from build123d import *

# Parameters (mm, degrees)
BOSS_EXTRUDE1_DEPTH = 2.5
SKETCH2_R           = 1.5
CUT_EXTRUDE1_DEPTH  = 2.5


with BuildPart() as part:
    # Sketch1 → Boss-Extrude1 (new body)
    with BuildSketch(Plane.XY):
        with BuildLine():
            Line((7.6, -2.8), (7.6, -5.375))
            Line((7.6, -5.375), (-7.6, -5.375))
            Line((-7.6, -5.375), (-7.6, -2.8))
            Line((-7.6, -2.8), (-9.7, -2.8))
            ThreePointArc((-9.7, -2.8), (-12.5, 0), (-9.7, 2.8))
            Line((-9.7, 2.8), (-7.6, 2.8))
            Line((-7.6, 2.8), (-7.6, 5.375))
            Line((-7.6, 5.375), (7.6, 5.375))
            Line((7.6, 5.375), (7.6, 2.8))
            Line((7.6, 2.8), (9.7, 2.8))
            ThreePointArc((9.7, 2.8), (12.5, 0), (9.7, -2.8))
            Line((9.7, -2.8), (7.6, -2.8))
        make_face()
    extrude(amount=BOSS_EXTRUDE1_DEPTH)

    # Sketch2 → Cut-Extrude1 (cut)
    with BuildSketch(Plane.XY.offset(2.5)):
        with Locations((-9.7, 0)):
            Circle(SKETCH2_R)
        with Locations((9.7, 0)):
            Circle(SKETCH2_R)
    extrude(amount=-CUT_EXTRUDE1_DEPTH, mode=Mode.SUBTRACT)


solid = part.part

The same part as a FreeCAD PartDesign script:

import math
import FreeCAD as App
import Part
import Sketcher
from FreeCAD import Vector

doc = App.newDocument("Part")
body = doc.addObject("PartDesign::Body", "Body")

# Sketch on XY plane
sketch1 = body.newObject("Sketcher::SketchObject", "Sketch")
sketch1.AttachmentSupport = (doc.getObject("XY_Plane"), [""])
sketch1.MapMode = "FlatFace"
sketch1.addGeometry(Part.LineSegment(Vector(7.6, -5.4, 0), Vector(7.6, -2.8, 0)), False)
sketch1.addGeometry(Part.LineSegment(Vector(7.6, -2.8, 0), Vector(9.7, -2.8, 0)), False)
sketch1.addGeometry(Part.ArcOfCircle(Part.Circle(Vector(9.7, 0, 0), Vector(0, 0, 1), 2.8), math.radians(-90), math.radians(90)), False)
sketch1.addGeometry(Part.LineSegment(Vector(9.7, 2.8, 0), Vector(7.6, 2.8, 0)), False)
sketch1.addGeometry(Part.LineSegment(Vector(7.6, 2.8, 0), Vector(7.6, 5.4, 0)), False)
sketch1.addGeometry(Part.LineSegment(Vector(7.6, 5.4, 0), Vector(-7.6, 5.4, 0)), False)
sketch1.addGeometry(Part.LineSegment(Vector(-7.6, 5.4, 0), Vector(-7.6, 2.8, 0)), False)
sketch1.addGeometry(Part.LineSegment(Vector(-7.6, 2.8, 0), Vector(-9.7, 2.8, 0)), False)
sketch1.addGeometry(Part.ArcOfCircle(Part.Circle(Vector(-9.7, 0, 0), Vector(0, 0, 1), 2.8), math.radians(90), math.radians(270)), False)
sketch1.addGeometry(Part.LineSegment(Vector(-9.7, -2.8, 0), Vector(-7.6, -2.8, 0)), False)
sketch1.addGeometry(Part.LineSegment(Vector(-7.6, -2.8, 0), Vector(-7.6, -5.4, 0)), False)
sketch1.addGeometry(Part.LineSegment(Vector(-7.6, -5.4, 0), Vector(7.6, -5.4, 0)), False)
sketch1.addConstraint(Sketcher.Constraint("Coincident", 0, 2, 1, 1))
sketch1.addConstraint(Sketcher.Constraint("Tangent", 1, 2, 2, 1))
sketch1.addConstraint(Sketcher.Constraint("Tangent", 2, 2, 3, 1))
sketch1.addConstraint(Sketcher.Constraint("Coincident", 3, 2, 4, 1))
sketch1.addConstraint(Sketcher.Constraint("Coincident", 4, 2, 5, 1))
sketch1.addConstraint(Sketcher.Constraint("Coincident", 5, 2, 6, 1))
sketch1.addConstraint(Sketcher.Constraint("Coincident", 6, 2, 7, 1))
sketch1.addConstraint(Sketcher.Constraint("Tangent", 7, 2, 8, 1))
sketch1.addConstraint(Sketcher.Constraint("Tangent", 8, 2, 9, 1))
sketch1.addConstraint(Sketcher.Constraint("Coincident", 9, 2, 10, 1))
sketch1.addConstraint(Sketcher.Constraint("Coincident", 10, 2, 11, 1))
sketch1.addConstraint(Sketcher.Constraint("Coincident", 11, 2, 0, 1))
sketch1.addConstraint(Sketcher.Constraint("Vertical", 0))
sketch1.addConstraint(Sketcher.Constraint("Horizontal", 1))
sketch1.addConstraint(Sketcher.Constraint("Horizontal", 3))
sketch1.addConstraint(Sketcher.Constraint("Vertical", 4))
sketch1.addConstraint(Sketcher.Constraint("Horizontal", 5))
sketch1.addConstraint(Sketcher.Constraint("Vertical", 6))
sketch1.addConstraint(Sketcher.Constraint("Horizontal", 7))
sketch1.addConstraint(Sketcher.Constraint("Horizontal", 9))
sketch1.addConstraint(Sketcher.Constraint("Vertical", 10))
sketch1.addConstraint(Sketcher.Constraint("Horizontal", 11))
sketch1.addConstraint(Sketcher.Constraint("Equal", 2, 8))
sketch1.addConstraint(Sketcher.Constraint("Symmetric", 2, 3, 8, 3, -1, 1))
sketch1.addConstraint(Sketcher.Constraint("Symmetric", 4, 2, 10, 2, -1, 1))
sketch1.addConstraint(Sketcher.Constraint("Symmetric", 3, 2, 6, 2, -2))
sketch1.addConstraint(Sketcher.Constraint("Vertical", 0, 2, 3, 2))
sketch1.addConstraint(Sketcher.Constraint("Radius", 2, 2.8))
sketch1.addConstraint(Sketcher.Constraint("DistanceX", 1, 1, 1, 2, 2.1))
sketch1.addConstraint(Sketcher.Constraint("DistanceX", 5, 2, 5, 1, 15.2))
sketch1.addConstraint(Sketcher.Constraint("DistanceY", 0, 1, 0, 2, 2.575))
pad1 = body.newObject("PartDesign::Pad", "Pad")
pad1.Profile = sketch1
pad1.Length = 2.5

# Sketch on XY plane
sketch2 = body.newObject("Sketcher::SketchObject", "Sketch001")
sketch2.AttachmentSupport = (doc.getObject("XY_Plane"), [""])
sketch2.MapMode = "FlatFace"
sketch2.AttachmentOffset = App.Placement(Vector(0, 0, 2.5), App.Rotation())
sketch2.addGeometry(Part.Circle(Vector(-9.7, 0, 0), Vector(0, 0, 1), 1.5), False)
sketch2.addGeometry(Part.Circle(Vector(9.7, 0, 0), Vector(0, 0, 1), 1.5), False)
sketch2.addConstraint(Sketcher.Constraint("Equal", 0, 1))
sketch2.addConstraint(Sketcher.Constraint("Symmetric", 0, 3, 1, 3, -1, 1))
sketch2.addConstraint(Sketcher.Constraint("PointOnObject", 0, 3, -1))
sketch2.addConstraint(Sketcher.Constraint("Diameter", 0, 3.0))
sketch2.addConstraint(Sketcher.Constraint("DistanceX", 0, 3, -1, 1, 9.7))
pocket1 = body.newObject("PartDesign::Pocket", "Pocket")
pocket1.Profile = sketch2
pocket1.Length = 2.5

doc.recompute()
